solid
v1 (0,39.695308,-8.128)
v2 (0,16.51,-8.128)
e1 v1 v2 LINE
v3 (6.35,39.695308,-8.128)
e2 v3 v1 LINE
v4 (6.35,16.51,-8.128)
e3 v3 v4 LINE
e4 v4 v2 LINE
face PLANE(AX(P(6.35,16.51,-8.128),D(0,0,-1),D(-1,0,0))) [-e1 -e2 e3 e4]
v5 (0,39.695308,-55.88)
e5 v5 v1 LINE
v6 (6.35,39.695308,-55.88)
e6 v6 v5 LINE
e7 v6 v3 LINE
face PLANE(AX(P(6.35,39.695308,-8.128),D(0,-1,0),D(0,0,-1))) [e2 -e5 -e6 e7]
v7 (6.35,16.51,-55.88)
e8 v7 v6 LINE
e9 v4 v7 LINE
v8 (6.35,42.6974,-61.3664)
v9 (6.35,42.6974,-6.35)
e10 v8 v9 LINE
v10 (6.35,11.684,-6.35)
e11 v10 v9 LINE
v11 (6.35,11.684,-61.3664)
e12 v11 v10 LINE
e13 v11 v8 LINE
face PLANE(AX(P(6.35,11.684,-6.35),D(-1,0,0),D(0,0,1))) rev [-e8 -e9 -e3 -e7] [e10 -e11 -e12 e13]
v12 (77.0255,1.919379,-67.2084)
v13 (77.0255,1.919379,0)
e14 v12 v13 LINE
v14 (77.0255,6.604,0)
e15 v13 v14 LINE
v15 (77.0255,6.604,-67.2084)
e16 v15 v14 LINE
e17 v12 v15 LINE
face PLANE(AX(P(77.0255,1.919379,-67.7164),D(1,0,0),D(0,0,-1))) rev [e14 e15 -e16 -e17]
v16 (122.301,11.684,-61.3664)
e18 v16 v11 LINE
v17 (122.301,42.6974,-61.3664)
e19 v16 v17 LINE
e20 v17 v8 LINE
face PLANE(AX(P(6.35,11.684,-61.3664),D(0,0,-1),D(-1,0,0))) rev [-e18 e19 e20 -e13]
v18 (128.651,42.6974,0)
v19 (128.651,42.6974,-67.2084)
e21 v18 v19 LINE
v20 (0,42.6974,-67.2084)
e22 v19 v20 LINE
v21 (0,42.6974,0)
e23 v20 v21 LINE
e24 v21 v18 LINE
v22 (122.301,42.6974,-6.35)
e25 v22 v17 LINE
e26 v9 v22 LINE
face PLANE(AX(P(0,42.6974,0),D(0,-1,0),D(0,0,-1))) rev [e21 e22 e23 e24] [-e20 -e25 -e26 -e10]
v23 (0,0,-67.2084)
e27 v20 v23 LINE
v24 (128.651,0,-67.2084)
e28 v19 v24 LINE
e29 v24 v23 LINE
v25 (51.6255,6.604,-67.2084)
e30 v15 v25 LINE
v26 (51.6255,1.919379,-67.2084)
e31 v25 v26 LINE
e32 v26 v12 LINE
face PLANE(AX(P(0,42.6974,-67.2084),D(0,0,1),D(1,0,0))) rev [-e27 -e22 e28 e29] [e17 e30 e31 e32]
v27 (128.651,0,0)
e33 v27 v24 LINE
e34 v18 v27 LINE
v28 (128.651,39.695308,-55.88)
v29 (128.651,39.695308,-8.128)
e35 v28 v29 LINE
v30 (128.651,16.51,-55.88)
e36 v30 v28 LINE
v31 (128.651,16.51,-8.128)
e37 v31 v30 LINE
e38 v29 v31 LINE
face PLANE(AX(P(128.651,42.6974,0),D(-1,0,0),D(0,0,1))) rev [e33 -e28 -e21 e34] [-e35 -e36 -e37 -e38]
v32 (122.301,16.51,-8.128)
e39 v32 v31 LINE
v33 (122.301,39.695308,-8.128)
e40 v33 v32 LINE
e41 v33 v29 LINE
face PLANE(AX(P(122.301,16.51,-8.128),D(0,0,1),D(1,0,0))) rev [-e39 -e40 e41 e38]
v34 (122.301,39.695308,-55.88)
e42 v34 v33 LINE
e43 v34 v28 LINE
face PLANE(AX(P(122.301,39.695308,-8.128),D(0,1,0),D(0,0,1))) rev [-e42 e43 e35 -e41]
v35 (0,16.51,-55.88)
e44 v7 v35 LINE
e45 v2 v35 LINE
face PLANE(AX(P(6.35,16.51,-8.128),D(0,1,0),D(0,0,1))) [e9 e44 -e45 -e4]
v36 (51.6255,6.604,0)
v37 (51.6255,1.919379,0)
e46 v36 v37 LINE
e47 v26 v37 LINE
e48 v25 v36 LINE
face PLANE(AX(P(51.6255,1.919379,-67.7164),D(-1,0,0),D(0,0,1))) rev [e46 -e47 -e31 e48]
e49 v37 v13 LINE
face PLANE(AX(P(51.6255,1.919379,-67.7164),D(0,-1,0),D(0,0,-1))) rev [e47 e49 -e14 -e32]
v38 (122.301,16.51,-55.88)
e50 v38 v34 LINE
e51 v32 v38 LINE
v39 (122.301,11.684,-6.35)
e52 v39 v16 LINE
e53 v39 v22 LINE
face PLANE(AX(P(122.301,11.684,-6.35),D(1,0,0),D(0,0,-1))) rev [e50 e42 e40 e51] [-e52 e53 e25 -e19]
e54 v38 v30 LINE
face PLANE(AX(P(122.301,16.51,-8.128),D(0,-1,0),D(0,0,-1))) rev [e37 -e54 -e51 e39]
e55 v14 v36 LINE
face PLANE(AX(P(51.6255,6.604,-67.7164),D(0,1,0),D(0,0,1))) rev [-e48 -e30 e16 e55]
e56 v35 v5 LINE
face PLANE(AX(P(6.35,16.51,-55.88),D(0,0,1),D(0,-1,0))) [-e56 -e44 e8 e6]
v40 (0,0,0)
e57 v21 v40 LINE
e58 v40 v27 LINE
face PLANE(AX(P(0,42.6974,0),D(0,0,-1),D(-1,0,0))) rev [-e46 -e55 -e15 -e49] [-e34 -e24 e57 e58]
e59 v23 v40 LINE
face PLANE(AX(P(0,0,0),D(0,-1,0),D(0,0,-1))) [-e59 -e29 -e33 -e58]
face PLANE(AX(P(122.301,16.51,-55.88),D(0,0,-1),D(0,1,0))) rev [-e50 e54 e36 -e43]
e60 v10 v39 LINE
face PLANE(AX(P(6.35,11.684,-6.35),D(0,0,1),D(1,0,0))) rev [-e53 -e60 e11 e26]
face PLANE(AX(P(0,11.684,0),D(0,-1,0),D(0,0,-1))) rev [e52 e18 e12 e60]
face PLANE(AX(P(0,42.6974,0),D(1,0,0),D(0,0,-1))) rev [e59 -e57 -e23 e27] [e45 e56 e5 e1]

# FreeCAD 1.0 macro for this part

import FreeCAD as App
import Part
import Sketcher
from FreeCAD import Vector
Q = App.Units.Quantity

doc = App.newDocument("Part")
body = doc.addObject("PartDesign::Body", "Body")

# Sketch on XZ plane
sketch1 = body.newObject("Sketcher::SketchObject", "Sketch")
sketch1.AttachmentSupport = (doc.getObject("XZ_Plane"), [""])
sketch1.MapMode = "FlatFace"
sketch1.addGeometry([
    Part.LineSegment(Vector(0, -67, 0), Vector(0, 0, 0)),
    Part.LineSegment(Vector(0, 0, 0), Vector(129, 0, 0)),
    Part.LineSegment(Vector(129, 0, 0), Vector(129, -67, 0)),
    Part.LineSegment(Vector(129, -67, 0), Vector(0, -67, 0)),
], False)
sketch1.addConstraint([
    Sketcher.Constraint("Coincident", 0, 2, 1, 1),
    Sketcher.Constraint("Coincident", 1, 2, 2, 1),
    Sketcher.Constraint("Coincident", 2, 2, 3, 1),
    Sketcher.Constraint("Coincident", 3, 2, 0, 1),
    Sketcher.Constraint("Vertical", 0),
    Sketcher.Constraint("Horizontal", 1),
    Sketcher.Constraint("Vertical", 2),
    Sketcher.Constraint("Horizontal", 3),
    Sketcher.Constraint("Coincident", 0, 2, -1, 1),
    Sketcher.Constraint("DistanceX", 1, 1, 1, 2, Q("5.065 in")),
    Sketcher.Constraint("DistanceY", 0, 1, 0, 2, Q("2.646 in")),
])
pad1 = body.newObject("PartDesign::Pad", "Pad")
pad1.Profile = sketch1
pad1.Length = Q("1.681 in")
pad1.Reversed = True

# Sketch on XZ plane
sketch2 = body.newObject("Sketcher::SketchObject", "Sketch001")
sketch2.AttachmentSupport = (doc.getObject("XZ_Plane"), [""])
sketch2.MapMode = "FlatFace"
sketch2.AttachmentOffset = App.Placement(Vector(0, 0, -1.681 * 25.4), App.Rotation())
sketch2.addGeometry([
    Part.LineSegment(Vector(6, -61, 0), Vector(6, -6, 0)),
    Part.LineSegment(Vector(6, -6, 0), Vector(122, -6, 0)),
    Part.LineSegment(Vector(122, -6, 0), Vector(122, -61, 0)),
    Part.LineSegment(Vector(122, -61, 0), Vector(6, -61, 0)),
], False)
sketch2.addConstraint([
    Sketcher.Constraint("Coincident", 0, 2, 1, 1),
    Sketcher.Constraint("Coincident", 1, 2, 2, 1),
    Sketcher.Constraint("Coincident", 2, 2, 3, 1),
    Sketcher.Constraint("Coincident", 3, 2, 0, 1),
    Sketcher.Constraint("Vertical", 0),
    Sketcher.Constraint("Horizontal", 1),
    Sketcher.Constraint("Vertical", 2),
    Sketcher.Constraint("Horizontal", 3),
    Sketcher.Constraint("DistanceX", 1, 1, 1, 2, Q("4.565 in")),
    Sketcher.Constraint("DistanceY", 0, 1, 0, 2, Q("2.166 in")),
    Sketcher.Constraint("DistanceX", -1, 1, 0, 2, Q("0.25 in")),
    Sketcher.Constraint("DistanceY", 0, 2, -1, 1, Q("0.25 in")),
])
pocket1 = body.newObject("PartDesign::Pocket", "Pocket")
pocket1.Profile = sketch2
pocket1.Length = Q("1.221 in")
pocket1.Reversed = True

# Sketch on XY plane
sketch3 = body.newObject("Sketcher::SketchObject", "Sketch002")
sketch3.AttachmentSupport = (doc.getObject("XY_Plane"), [""])
sketch3.MapMode = "FlatFace"
sketch3.addGeometry([
    Part.LineSegment(Vector(51.6, 6.6, 0), Vector(51.6, 1.9, 0)),
    Part.LineSegment(Vector(51.6, 1.9, 0), Vector(77, 1.9, 0)),
    Part.LineSegment(Vector(77, 1.9, 0), Vector(77, 6.6, 0)),
    Part.LineSegment(Vector(77, 6.6, 0), Vector(51.6, 6.6, 0)),
], False)
sketch3.addConstraint([
    Sketcher.Constraint("Coincident", 0, 2, 1, 1),
    Sketcher.Constraint("Coincident", 1, 2, 2, 1),
    Sketcher.Constraint("Coincident", 2, 2, 3, 1),
    Sketcher.Constraint("Coincident", 3, 2, 0, 1),
    Sketcher.Constraint("Vertical", 0),
    Sketcher.Constraint("Horizontal", 1),
    Sketcher.Constraint("Vertical", 2),
    Sketcher.Constraint("Horizontal", 3),
    Sketcher.Constraint("DistanceX", 1, 1, 1, 2, Q("1 in")),
    Sketcher.Constraint("DistanceY", -1, 1, 2, 2, Q("0.26 in")),
    Sketcher.Constraint("DistanceX", -1, 1, 0, 2, Q("2.0325 in")),
    Sketcher.Constraint("DistanceY", 0, 2, 0, 1, 4.684621),
])
pocket2 = body.newObject("PartDesign::Pocket", "Pocket001")
pocket2.Profile = sketch3
pocket2.Length = Q("2.666 in")

# Sketch on YZ plane
sketch4 = body.newObject("Sketcher::SketchObject", "Sketch003")
sketch4.AttachmentSupport = (doc.getObject("YZ_Plane"), [""])
sketch4.MapMode = "FlatFace"
sketch4.AttachmentOffset = App.Placement(Vector(0, 0, 5.065 * 25.4), App.Rotation())
sketch4.addGeometry([
    Part.LineSegment(Vector(40, -8, 0), Vector(17, -8, 0)),
    Part.LineSegment(Vector(17, -8, 0), Vector(17, -56, 0)),
    Part.LineSegment(Vector(17, -56, 0), Vector(40, -56, 0)),
    Part.LineSegment(Vector(40, -56, 0), Vector(40, -8, 0)),
], False)
sketch4.addConstraint([
    Sketcher.Constraint("Coincident", 0, 2, 1, 1),
    Sketcher.Constraint("Coincident", 1, 2, 2, 1),
    Sketcher.Constraint("Coincident", 2, 2, 3, 1),
    Sketcher.Constraint("Coincident", 3, 2, 0, 1),
    Sketcher.Constraint("Horizontal", 0),
    Sketcher.Constraint("Vertical", 1),
    Sketcher.Constraint("Horizontal", 2),
    Sketcher.Constraint("Vertical", 3),
    Sketcher.Constraint("DistanceY", 1, 2, 1, 1, Q("1.88 in")),
    Sketcher.Constraint("DistanceY", 1, 2, -1, 1, Q("2.2 in")),
    Sketcher.Constraint("DistanceX", -1, 1, 0, 2, Q("0.65 in")),
    Sketcher.Constraint("DistanceX", 0, 2, 0, 1, 23.185308),
])
pocket3 = body.newObject("PartDesign::Pocket", "Pocket002")
pocket3.Profile = sketch4
pocket3.Length = Q("0.25 in")
doc.recompute()

datumplane = body.newObject("PartDesign::Plane", "DatumPlane")
datumplane.AttachmentSupport = (doc.getObject("YZ_Plane"), [""])
datumplane.MapMode = "FlatFace"
datumplane.AttachmentOffset = App.Placement(Vector(0, 0, 2.5325 * 25.4), App.Rotation())
mirrored = body.newObject("PartDesign::Mirrored", "Mirrored")
mirrored.Originals = [pocket3]
mirrored.MirrorPlane = (datumplane, [""])
body.Tip = mirrored

doc.recompute()
